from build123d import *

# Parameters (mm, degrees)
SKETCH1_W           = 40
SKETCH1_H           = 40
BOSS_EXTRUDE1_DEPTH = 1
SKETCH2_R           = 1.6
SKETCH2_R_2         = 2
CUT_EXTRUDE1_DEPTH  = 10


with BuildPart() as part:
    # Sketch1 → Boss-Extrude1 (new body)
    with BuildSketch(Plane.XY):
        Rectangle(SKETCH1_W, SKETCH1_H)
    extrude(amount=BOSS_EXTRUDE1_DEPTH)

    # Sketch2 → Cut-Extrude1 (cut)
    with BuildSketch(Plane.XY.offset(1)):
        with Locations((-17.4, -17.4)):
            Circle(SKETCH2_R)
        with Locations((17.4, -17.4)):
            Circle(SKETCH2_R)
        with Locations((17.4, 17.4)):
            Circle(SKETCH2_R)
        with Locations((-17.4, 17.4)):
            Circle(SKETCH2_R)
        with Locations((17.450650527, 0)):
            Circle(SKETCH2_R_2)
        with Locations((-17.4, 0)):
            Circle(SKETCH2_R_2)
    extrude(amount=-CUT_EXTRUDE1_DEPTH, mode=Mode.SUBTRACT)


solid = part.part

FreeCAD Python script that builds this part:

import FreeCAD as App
import Part
import Sketcher

V = App.Vector
Q = App.Units.Quantity


def add_polygon(sketch, points):
    """Adds a closed chain of lines whose ends are joined by coincident constraints."""
    first, n = sketch.GeometryCount, len(points)
    for a, b in zip(points, points[1:] + points[:1]):
        sketch.addGeometry(Part.LineSegment(App.Vector(*a, 0), App.Vector(*b, 0)), False)
    for i in range(n):
        sketch.addConstraint(Sketcher.Constraint("Coincident", first + i, 2, first + (i + 1) % n, 1))

doc = App.newDocument("Part")
body = doc.addObject("PartDesign::Body", "Body")

sketch1 = body.newObject("Sketcher::SketchObject", "Sketch")
sketch1.AttachmentSupport = (doc.getObject("XY_Plane"), [""])
sketch1.MapMode = "FlatFace"
add_polygon(sketch1, [(-20, 20), (-20, -20), (20, -20), (20, 20)])
sketch1.addConstraint(Sketcher.Constraint("Vertical", 0))
sketch1.addConstraint(Sketcher.Constraint("Horizontal", 1))
sketch1.addConstraint(Sketcher.Constraint("Vertical", 2))
sketch1.addConstraint(Sketcher.Constraint("Horizontal", 3))
sketch1.addConstraint(Sketcher.Constraint("Symmetric", 0, 2, 2, 2, -1, 1))
sketch1.addConstraint(Sketcher.Constraint("Equal", 3, 0))
sketch1.addConstraint(Sketcher.Constraint("DistanceX", 1, 1, 1, 2, Q("40 mm")))
pad1 = body.newObject("PartDesign::Pad", "Pad")
pad1.Profile = sketch1
pad1.Length = 1

sketch2 = body.newObject("Sketcher::SketchObject", "Sketch001")
sketch2.AttachmentSupport = (doc.getObject("XY_Plane"), [""])
sketch2.MapMode = "FlatFace"
sketch2.AttachmentOffset = App.Placement(V(0, 0, 1), App.Rotation())
sketch2.addGeometry(Part.Circle(V(-17.4, -17.4, 0), V(0, 0, 1), 1.6), False)
sketch2.addGeometry(Part.Circle(V(17.4, -17.4, 0), V(0, 0, 1), 1.6), False)
sketch2.addGeometry(Part.Circle(V(17.4, 17.4, 0), V(0, 0, 1), 1.6), False)
sketch2.addGeometry(Part.Circle(V(-17.4, 17.4, 0), V(0, 0, 1), 1.6), False)
sketch2.addGeometry(Part.Circle(V(17.450651, 0, 0), V(0, 0, 1), 2), False)
sketch2.addGeometry(Part.Circle(V(-17.4, 0, 0), V(0, 0, 1), 2), False)
sketch2.addConstraint(Sketcher.Constraint("Equal", 0, 1))
sketch2.addConstraint(Sketcher.Constraint("Equal", 1, 2))
sketch2.addConstraint(Sketcher.Constraint("Equal", 2, 3))
sketch2.addConstraint(Sketcher.Constraint("Equal", 4, 5))
sketch2.addConstraint(Sketcher.Constraint("Symmetric", 0, 3, 2, 3, -1, 1))
sketch2.addConstraint(Sketcher.Constraint("Symmetric", 1, 3, 3, 3, -1, 1))
sketch2.addConstraint(Sketcher.Constraint("Symmetric", 0, 3, 1, 3, -2))
sketch2.addConstraint(Sketcher.Constraint("PointOnObject", 4, 3, -1))
sketch2.addConstraint(Sketcher.Constraint("PointOnObject", 5, 3, -1))
sketch2.addConstraint(Sketcher.Constraint("Vertical", 3, 3, 5, 3))
sketch2.addConstraint(Sketcher.Constraint("Diameter", 4, Q("4 mm")))
sketch2.addConstraint(Sketcher.Constraint("Diameter", 0, Q("3.2 mm")))
sketch2.addConstraint(Sketcher.Constraint("DistanceX", 0, 3, -1, 1, Q("17.4 mm")))
sketch2.addConstraint(Sketcher.Constraint("DistanceY", 0, 3, -1, 1, Q("17.4 mm")))
sketch2.addConstraint(Sketcher.Constraint("DistanceX", -1, 1, 4, 3, Q("17.450651 mm")))
pocket1 = body.newObject("PartDesign::Pocket", "Pocket")
pocket1.Profile = sketch2
pocket1.Length = 10

doc.recompute()
